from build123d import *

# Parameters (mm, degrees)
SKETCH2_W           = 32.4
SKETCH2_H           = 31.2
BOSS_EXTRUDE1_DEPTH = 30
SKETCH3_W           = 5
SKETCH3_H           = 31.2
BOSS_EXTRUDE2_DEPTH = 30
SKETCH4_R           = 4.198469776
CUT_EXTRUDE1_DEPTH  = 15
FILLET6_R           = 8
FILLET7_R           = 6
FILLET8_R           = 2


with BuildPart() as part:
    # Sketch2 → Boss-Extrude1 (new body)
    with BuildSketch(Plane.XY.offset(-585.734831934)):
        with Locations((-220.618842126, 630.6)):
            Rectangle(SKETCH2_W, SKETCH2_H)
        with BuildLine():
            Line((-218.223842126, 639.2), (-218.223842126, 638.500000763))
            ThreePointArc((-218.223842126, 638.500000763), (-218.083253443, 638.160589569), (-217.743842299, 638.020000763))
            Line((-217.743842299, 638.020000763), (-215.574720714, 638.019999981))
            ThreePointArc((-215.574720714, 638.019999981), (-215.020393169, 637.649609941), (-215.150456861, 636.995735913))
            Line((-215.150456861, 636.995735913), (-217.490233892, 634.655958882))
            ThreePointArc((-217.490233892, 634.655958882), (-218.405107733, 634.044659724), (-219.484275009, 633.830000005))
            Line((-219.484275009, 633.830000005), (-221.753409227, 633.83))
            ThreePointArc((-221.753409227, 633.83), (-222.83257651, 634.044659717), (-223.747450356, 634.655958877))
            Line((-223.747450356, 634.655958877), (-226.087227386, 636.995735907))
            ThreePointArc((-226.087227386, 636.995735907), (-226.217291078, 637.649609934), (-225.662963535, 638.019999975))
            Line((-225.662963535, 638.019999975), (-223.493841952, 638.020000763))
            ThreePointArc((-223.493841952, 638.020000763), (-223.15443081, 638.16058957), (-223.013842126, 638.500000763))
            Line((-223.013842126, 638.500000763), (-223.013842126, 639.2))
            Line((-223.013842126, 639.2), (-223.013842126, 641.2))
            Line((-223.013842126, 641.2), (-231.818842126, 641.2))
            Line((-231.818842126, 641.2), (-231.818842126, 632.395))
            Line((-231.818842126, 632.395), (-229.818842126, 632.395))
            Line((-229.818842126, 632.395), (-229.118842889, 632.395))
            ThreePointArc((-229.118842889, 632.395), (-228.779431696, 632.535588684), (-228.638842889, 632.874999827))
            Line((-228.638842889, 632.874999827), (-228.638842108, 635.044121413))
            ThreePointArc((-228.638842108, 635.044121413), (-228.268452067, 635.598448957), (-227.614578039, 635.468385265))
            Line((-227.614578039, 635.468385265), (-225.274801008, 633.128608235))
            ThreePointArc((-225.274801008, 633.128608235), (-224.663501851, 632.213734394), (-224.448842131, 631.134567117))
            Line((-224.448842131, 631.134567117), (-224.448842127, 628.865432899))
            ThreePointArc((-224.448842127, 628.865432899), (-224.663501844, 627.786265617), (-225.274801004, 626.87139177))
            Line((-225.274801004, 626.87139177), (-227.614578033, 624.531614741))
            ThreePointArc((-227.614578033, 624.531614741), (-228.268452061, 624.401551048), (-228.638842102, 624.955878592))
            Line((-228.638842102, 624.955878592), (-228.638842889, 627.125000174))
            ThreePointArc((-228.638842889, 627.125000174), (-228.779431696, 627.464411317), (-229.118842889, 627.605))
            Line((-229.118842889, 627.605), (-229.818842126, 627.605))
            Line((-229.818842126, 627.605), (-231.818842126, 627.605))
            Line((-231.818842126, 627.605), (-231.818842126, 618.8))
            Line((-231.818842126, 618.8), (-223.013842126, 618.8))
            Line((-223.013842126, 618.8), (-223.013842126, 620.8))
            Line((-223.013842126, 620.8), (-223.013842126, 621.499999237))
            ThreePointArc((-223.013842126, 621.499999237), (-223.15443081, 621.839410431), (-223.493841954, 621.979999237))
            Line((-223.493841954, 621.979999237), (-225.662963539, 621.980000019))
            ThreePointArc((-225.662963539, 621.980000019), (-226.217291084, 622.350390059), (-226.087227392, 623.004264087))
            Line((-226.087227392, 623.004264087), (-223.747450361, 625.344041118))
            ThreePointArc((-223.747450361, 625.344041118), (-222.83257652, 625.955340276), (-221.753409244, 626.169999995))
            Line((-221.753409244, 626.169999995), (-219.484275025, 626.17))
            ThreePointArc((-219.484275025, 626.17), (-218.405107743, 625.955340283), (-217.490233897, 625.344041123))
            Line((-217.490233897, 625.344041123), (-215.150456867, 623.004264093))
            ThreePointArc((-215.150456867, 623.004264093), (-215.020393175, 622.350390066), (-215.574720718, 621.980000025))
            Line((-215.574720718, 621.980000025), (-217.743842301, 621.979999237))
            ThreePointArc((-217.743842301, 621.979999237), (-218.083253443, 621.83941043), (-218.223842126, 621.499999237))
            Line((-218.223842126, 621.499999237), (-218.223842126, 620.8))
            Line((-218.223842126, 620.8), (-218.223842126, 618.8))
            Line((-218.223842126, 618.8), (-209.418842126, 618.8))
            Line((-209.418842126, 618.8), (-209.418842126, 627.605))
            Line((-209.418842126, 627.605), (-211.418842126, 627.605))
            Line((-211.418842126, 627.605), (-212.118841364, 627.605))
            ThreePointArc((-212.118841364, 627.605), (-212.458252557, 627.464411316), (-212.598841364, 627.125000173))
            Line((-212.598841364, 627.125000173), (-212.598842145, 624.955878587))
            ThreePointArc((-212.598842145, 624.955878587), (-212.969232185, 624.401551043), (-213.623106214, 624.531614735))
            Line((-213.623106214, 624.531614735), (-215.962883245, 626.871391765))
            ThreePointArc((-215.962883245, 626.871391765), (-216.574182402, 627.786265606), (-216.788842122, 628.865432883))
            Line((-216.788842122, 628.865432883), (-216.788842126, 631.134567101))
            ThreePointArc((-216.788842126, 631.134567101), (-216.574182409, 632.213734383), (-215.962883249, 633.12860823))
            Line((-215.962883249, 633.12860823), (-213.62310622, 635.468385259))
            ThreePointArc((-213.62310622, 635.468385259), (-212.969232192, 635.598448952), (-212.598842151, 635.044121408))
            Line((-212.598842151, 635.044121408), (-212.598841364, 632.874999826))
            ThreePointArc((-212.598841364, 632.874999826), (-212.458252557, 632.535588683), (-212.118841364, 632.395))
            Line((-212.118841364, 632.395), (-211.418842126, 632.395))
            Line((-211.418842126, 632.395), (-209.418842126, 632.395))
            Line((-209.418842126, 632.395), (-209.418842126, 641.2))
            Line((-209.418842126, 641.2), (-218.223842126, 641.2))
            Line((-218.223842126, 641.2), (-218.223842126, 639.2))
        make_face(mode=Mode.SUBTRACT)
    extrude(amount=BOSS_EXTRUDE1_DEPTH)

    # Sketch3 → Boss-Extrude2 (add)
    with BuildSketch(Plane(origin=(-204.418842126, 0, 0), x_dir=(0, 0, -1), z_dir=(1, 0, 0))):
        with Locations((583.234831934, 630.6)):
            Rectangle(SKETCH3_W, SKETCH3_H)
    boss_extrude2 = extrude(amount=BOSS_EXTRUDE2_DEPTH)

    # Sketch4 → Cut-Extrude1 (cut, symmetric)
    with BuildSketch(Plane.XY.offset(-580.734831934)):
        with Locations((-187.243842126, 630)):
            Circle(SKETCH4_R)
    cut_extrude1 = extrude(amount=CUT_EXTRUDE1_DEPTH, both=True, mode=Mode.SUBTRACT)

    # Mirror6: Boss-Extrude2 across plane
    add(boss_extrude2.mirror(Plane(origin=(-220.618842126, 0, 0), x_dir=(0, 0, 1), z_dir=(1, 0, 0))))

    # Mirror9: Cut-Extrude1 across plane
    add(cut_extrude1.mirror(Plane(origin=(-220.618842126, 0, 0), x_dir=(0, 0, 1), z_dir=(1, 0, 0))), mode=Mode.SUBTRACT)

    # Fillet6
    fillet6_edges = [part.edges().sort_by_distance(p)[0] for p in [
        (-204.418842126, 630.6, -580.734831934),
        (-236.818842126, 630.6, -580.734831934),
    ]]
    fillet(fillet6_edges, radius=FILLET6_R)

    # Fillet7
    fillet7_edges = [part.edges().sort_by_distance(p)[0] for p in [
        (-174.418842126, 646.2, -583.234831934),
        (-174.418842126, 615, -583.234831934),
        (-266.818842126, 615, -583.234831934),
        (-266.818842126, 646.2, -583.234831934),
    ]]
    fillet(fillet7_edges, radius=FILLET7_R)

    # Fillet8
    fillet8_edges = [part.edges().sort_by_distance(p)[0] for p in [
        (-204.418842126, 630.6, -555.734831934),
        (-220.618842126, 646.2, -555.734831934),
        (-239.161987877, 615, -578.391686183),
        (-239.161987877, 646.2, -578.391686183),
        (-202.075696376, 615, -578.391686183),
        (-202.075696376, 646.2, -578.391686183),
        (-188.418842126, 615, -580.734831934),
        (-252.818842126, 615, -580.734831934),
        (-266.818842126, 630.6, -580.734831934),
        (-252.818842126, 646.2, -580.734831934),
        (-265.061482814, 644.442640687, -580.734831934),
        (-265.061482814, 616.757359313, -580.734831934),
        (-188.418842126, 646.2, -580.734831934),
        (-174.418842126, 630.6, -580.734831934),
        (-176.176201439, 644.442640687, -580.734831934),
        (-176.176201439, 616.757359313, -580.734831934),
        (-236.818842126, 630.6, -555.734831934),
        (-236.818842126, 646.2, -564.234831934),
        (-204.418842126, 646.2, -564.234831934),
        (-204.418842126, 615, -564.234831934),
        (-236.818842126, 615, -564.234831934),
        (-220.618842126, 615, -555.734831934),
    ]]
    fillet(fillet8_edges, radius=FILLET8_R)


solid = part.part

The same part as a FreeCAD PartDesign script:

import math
import FreeCAD as App
import Part
import Sketcher
Q = App.Units.Quantity


def edges_at(feature, points):
    """Names of the edges that pass closest to the given points."""
    edges = feature.Shape.Edges
    near = lambda p: min(range(len(edges)), key=lambda i: edges[i].distToShape(Part.Vertex(*p))[0])
    return sorted({f"Edge{near(p) + 1}" for p in points})


def add_polygon(sketch, points):
    """Adds a closed chain of lines whose ends are joined by coincident constraints."""
    first, n = sketch.GeometryCount, len(points)
    for a, b in zip(points, points[1:] + points[:1]):
        sketch.addGeometry(Part.LineSegment(App.Vector(*a, 0), App.Vector(*b, 0)), False)
    for i in range(n):
        sketch.addConstraint(Sketcher.Constraint("Coincident", first + i, 2, first + (i + 1) % n, 1))

doc = App.newDocument("Part")
body = doc.addObject("PartDesign::Body", "Body")

# Sketch on XY plane
sketch1 = body.newObject("Sketcher::SketchObject", "Sketch")
sketch1.AttachmentSupport = (doc.getObject("XY_Plane"), [""])
sketch1.MapMode = "FlatFace"
sketch1.AttachmentOffset = App.Placement(App.Vector(0, 0, -585.734832), App.Rotation())
add_polygon(sketch1, [(-236.82, 646.2), (-236.82, 615), (-204.42, 615), (-204.42, 646.2)])  # lines 0-3
sketch1.addGeometry(Part.ArcOfCircle(Part.Circle(App.Vector(-217.74, 638.5, 0), App.Vector(0, 0, 1), 0.48), math.radians(180), math.radians(270)), False)  # 4
sketch1.addGeometry(Part.LineSegment(App.Vector(-218.22, 638.5, 0), App.Vector(-218.22, 641.2, 0)), False)  # 5
sketch1.addGeometry(Part.LineSegment(App.Vector(-218.22, 641.2, 0), App.Vector(-209.42, 641.2, 0)), False)  # 6
sketch1.addGeometry(Part.LineSegment(App.Vector(-209.42, 641.2, 0), App.Vector(-209.42, 632.39, 0)), False)  # 7
sketch1.addGeometry(Part.LineSegment(App.Vector(-209.42, 632.39, 0), App.Vector(-212.12, 632.39, 0)), False)  # 8
sketch1.addGeometry(Part.ArcOfCircle(Part.Circle(App.Vector(-212.12, 632.88, 0), App.Vector(0, 0, 1), 0.48), math.radians(-180), math.radians(-90)), False)  # 9
sketch1.addGeometry(Part.LineSegment(App.Vector(-212.6, 632.87, 0), App.Vector(-212.6, 635.04, 0)), False)  # 10
sketch1.addGeometry(Part.ArcOfCircle(Part.Circle(App.Vector(-213.2, 635.04, 0), App.Vector(0, 0, 1), 0.6), math.radians(0), math.radians(135)), False)  # 11
sketch1.addGeometry(Part.LineSegment(App.Vector(-213.62, 635.47, 0), App.Vector(-215.96, 633.13, 0)), False)  # 12
sketch1.addGeometry(Part.ArcOfCircle(Part.Circle(App.Vector(-213.97, 631.13, 0), App.Vector(0, 0, 1), 2.82), math.radians(135), math.radians(180)), False)  # 13
sketch1.addGeometry(Part.LineSegment(App.Vector(-216.79, 631.13, 0), App.Vector(-216.79, 628.87, 0)), False)  # 14
sketch1.addGeometry(Part.ArcOfCircle(Part.Circle(App.Vector(-213.97, 628.87, 0), App.Vector(0, 0, 1), 2.82), math.radians(-180), math.radians(-135)), False)  # 15
sketch1.addGeometry(Part.LineSegment(App.Vector(-215.96, 626.87, 0), App.Vector(-213.62, 624.53, 0)), False)  # 16
sketch1.addGeometry(Part.ArcOfCircle(Part.Circle(App.Vector(-213.2, 624.96, 0), App.Vector(0, 0, 1), 0.6), math.radians(-135), math.radians(0)), False)  # 17
sketch1.addGeometry(Part.LineSegment(App.Vector(-212.6, 624.96, 0), App.Vector(-212.6, 627.13, 0)), False)  # 18
sketch1.addGeometry(Part.ArcOfCircle(Part.Circle(App.Vector(-212.12, 627.12, 0), App.Vector(0, 0, 1), 0.48), math.radians(90), math.radians(180)), False)  # 19
sketch1.addGeometry(Part.LineSegment(App.Vector(-212.12, 627.61, 0), App.Vector(-209.42, 627.61, 0)), False)  # 20
sketch1.addGeometry(Part.LineSegment(App.Vector(-209.42, 627.61, 0), App.Vector(-209.42, 618.8, 0)), False)  # 21
sketch1.addGeometry(Part.LineSegment(App.Vector(-209.42, 618.8, 0), App.Vector(-218.22, 618.8, 0)), False)  # 22
sketch1.addGeometry(Part.LineSegment(App.Vector(-218.22, 618.8, 0), App.Vector(-218.22, 621.5, 0)), False)  # 23
sketch1.addGeometry(Part.ArcOfCircle(Part.Circle(App.Vector(-217.74, 621.5, 0), App.Vector(0, 0, 1), 0.48), math.radians(90), math.radians(180)), False)  # 24
sketch1.addGeometry(Part.LineSegment(App.Vector(-217.74, 621.98, 0), App.Vector(-215.57, 621.98, 0)), False)  # 25
sketch1.addGeometry(Part.ArcOfCircle(Part.Circle(App.Vector(-215.57, 622.58, 0), App.Vector(0, 0, 1), 0.6), math.radians(-90), math.radians(45)), False)  # 26
sketch1.addGeometry(Part.LineSegment(App.Vector(-215.15, 623, 0), App.Vector(-217.49, 625.34, 0)), False)  # 27
sketch1.addGeometry(Part.ArcOfCircle(Part.Circle(App.Vector(-219.48, 623.35, 0), App.Vector(0, 0, 1), 2.82), math.radians(45), math.radians(90)), False)  # 28
sketch1.addGeometry(Part.LineSegment(App.Vector(-219.48, 626.17, 0), App.Vector(-221.75, 626.17, 0)), False)  # 29
sketch1.addGeometry(Part.ArcOfCircle(Part.Circle(App.Vector(-221.75, 623.35, 0), App.Vector(0, 0, 1), 2.82), math.radians(90), math.radians(135)), False)  # 30
sketch1.addGeometry(Part.LineSegment(App.Vector(-223.75, 625.34, 0), App.Vector(-226.09, 623, 0)), False)  # 31
sketch1.addGeometry(Part.ArcOfCircle(Part.Circle(App.Vector(-225.66, 622.58, 0), App.Vector(0, 0, 1), 0.6), math.radians(135), math.radians(270)), False)  # 32
sketch1.addGeometry(Part.LineSegment(App.Vector(-225.66, 621.98, 0), App.Vector(-223.49, 621.98, 0)), False)  # 33
sketch1.addGeometry(Part.ArcOfCircle(Part.Circle(App.Vector(-223.49, 621.5, 0), App.Vector(0, 0, 1), 0.48), math.radians(0), math.radians(90)), False)  # 34
sketch1.addGeometry(Part.LineSegment(App.Vector(-223.01, 621.5, 0), App.Vector(-223.01, 618.8, 0)), False)  # 35
sketch1.addGeometry(Part.LineSegment(App.Vector(-223.01, 618.8, 0), App.Vector(-231.82, 618.8, 0)), False)  # 36
sketch1.addGeometry(Part.LineSegment(App.Vector(-231.82, 618.8, 0), App.Vector(-231.82, 627.61, 0)), False)  # 37
sketch1.addGeometry(Part.LineSegment(App.Vector(-231.82, 627.61, 0), App.Vector(-229.12, 627.61, 0)), False)  # 38
sketch1.addGeometry(Part.ArcOfCircle(Part.Circle(App.Vector(-229.12, 627.12, 0), App.Vector(0, 0, 1), 0.48), math.radians(0), math.radians(90)), False)  # 39
sketch1.addGeometry(Part.LineSegment(App.Vector(-228.64, 627.13, 0), App.Vector(-228.64, 624.96, 0)), False)  # 40
sketch1.addGeometry(Part.ArcOfCircle(Part.Circle(App.Vector(-228.04, 624.96, 0), App.Vector(0, 0, 1), 0.6), math.radians(-180), math.radians(-45)), False)  # 41
sketch1.addGeometry(Part.LineSegment(App.Vector(-227.61, 624.53, 0), App.Vector(-225.27, 626.87, 0)), False)  # 42
sketch1.addGeometry(Part.ArcOfCircle(Part.Circle(App.Vector(-227.27, 628.87, 0), App.Vector(0, 0, 1), 2.82), math.radians(-45), math.radians(0)), False)  # 43
sketch1.addGeometry(Part.LineSegment(App.Vector(-224.45, 628.87, 0), App.Vector(-224.45, 631.13, 0)), False)  # 44
sketch1.addGeometry(Part.ArcOfCircle(Part.Circle(App.Vector(-227.27, 631.13, 0), App.Vector(0, 0, 1), 2.82), math.radians(0), math.radians(45)), False)  # 45
sketch1.addGeometry(Part.LineSegment(App.Vector(-225.27, 633.13, 0), App.Vector(-227.61, 635.47, 0)), False)  # 46
sketch1.addGeometry(Part.ArcOfCircle(Part.Circle(App.Vector(-228.04, 635.04, 0), App.Vector(0, 0, 1), 0.6), math.radians(45), math.radians(180)), False)  # 47
sketch1.addGeometry(Part.LineSegment(App.Vector(-228.64, 635.04, 0), App.Vector(-228.64, 632.87, 0)), False)  # 48
sketch1.addGeometry(Part.ArcOfCircle(Part.Circle(App.Vector(-229.12, 632.88, 0), App.Vector(0, 0, 1), 0.48), math.radians(-90), math.radians(0)), False)  # 49
sketch1.addGeometry(Part.LineSegment(App.Vector(-229.12, 632.39, 0), App.Vector(-231.82, 632.39, 0)), False)  # 50
sketch1.addGeometry(Part.LineSegment(App.Vector(-231.82, 632.39, 0), App.Vector(-231.82, 641.2, 0)), False)  # 51
sketch1.addGeometry(Part.LineSegment(App.Vector(-231.82, 641.2, 0), App.Vector(-223.01, 641.2, 0)), False)  # 52
sketch1.addGeometry(Part.LineSegment(App.Vector(-223.01, 641.2, 0), App.Vector(-223.01, 638.5, 0)), False)  # 53
sketch1.addGeometry(Part.ArcOfCircle(Part.Circle(App.Vector(-223.49, 638.5, 0), App.Vector(0, 0, 1), 0.48), math.radians(-90), math.radians(0)), False)  # 54
sketch1.addGeometry(Part.LineSegment(App.Vector(-223.49, 638.02, 0), App.Vector(-225.66, 638.02, 0)), False)  # 55
sketch1.addGeometry(Part.ArcOfCircle(Part.Circle(App.Vector(-225.66, 637.42, 0), App.Vector(0, 0, 1), 0.6), math.radians(90), math.radians(225)), False)  # 56
sketch1.addGeometry(Part.LineSegment(App.Vector(-226.09, 637, 0), App.Vector(-223.75, 634.66, 0)), False)  # 57
sketch1.addGeometry(Part.ArcOfCircle(Part.Circle(App.Vector(-221.75, 636.65, 0), App.Vector(0, 0, 1), 2.82), math.radians(-135), math.radians(-90)), False)  # 58
sketch1.addGeometry(Part.LineSegment(App.Vector(-221.75, 633.83, 0), App.Vector(-219.48, 633.83, 0)), False)  # 59
sketch1.addGeometry(Part.ArcOfCircle(Part.Circle(App.Vector(-219.48, 636.65, 0), App.Vector(0, 0, 1), 2.82), math.radians(-90), math.radians(-45)), False)  # 60
sketch1.addGeometry(Part.LineSegment(App.Vector(-217.49, 634.66, 0), App.Vector(-215.15, 637, 0)), False)  # 61
sketch1.addGeometry(Part.ArcOfCircle(Part.Circle(App.Vector(-215.57, 637.42, 0), App.Vector(0, 0, 1), 0.6), math.radians(-45), math.radians(90)), False)  # 62
sketch1.addGeometry(Part.LineSegment(App.Vector(-215.57, 638.02, 0), App.Vector(-217.74, 638.02, 0)), False)  # 63
sketch1.addConstraint([
    Sketcher.Constraint("Tangent", 4, 1, 5, 1),
    Sketcher.Constraint("Coincident", 5, 2, 6, 1),
    Sketcher.Constraint("Coincident", 6, 2, 7, 1),
    Sketcher.Constraint("Coincident", 7, 2, 8, 1),
    Sketcher.Constraint("Tangent", 8, 2, 9, 2),
    Sketcher.Constraint("Tangent", 9, 1, 10, 1),
    Sketcher.Constraint("Tangent", 10, 2, 11, 1),
    Sketcher.Constraint("Tangent", 11, 2, 12, 1),
    Sketcher.Constraint("Tangent", 12, 2, 13, 1),
    Sketcher.Constraint("Tangent", 13, 2, 14, 1),
    Sketcher.Constraint("Tangent", 14, 2, 15, 1),
    Sketcher.Constraint("Tangent", 15, 2, 16, 1),
    Sketcher.Constraint("Tangent", 16, 2, 17, 1),
    Sketcher.Constraint("Tangent", 17, 2, 18, 1),
    Sketcher.Constraint("Tangent", 18, 2, 19, 2),
    Sketcher.Constraint("Tangent", 19, 1, 20, 1),
    Sketcher.Constraint("Coincident", 20, 2, 21, 1),
    Sketcher.Constraint("Coincident", 21, 2, 22, 1),
    Sketcher.Constraint("Coincident", 22, 2, 23, 1),
    Sketcher.Constraint("Tangent", 23, 2, 24, 2),
    Sketcher.Constraint("Tangent", 24, 1, 25, 1),
    Sketcher.Constraint("Tangent", 25, 2, 26, 1),
    Sketcher.Constraint("Tangent", 26, 2, 27, 1),
    Sketcher.Constraint("Tangent", 27, 2, 28, 1),
    Sketcher.Constraint("Tangent", 28, 2, 29, 1),
    Sketcher.Constraint("Tangent", 29, 2, 30, 1),
    Sketcher.Constraint("Tangent", 30, 2, 31, 1),
    Sketcher.Constraint("Tangent", 31, 2, 32, 1),
    Sketcher.Constraint("Tangent", 32, 2, 33, 1),
    Sketcher.Constraint("Tangent", 33, 2, 34, 2),
    Sketcher.Constraint("Tangent", 34, 1, 35, 1),
    Sketcher.Constraint("Coincident", 35, 2, 36, 1),
    Sketcher.Constraint("Coincident", 36, 2, 37, 1),
    Sketcher.Constraint("Coincident", 37, 2, 38, 1),
    Sketcher.Constraint("Tangent", 38, 2, 39, 2),
    Sketcher.Constraint("Tangent", 39, 1, 40, 1),
    Sketcher.Constraint("Tangent", 40, 2, 41, 1),
    Sketcher.Constraint("Tangent", 41, 2, 42, 1),
    Sketcher.Constraint("Tangent", 42, 2, 43, 1),
    Sketcher.Constraint("Tangent", 43, 2, 44, 1),
    Sketcher.Constraint("Tangent", 44, 2, 45, 1),
    Sketcher.Constraint("Tangent", 45, 2, 46, 1),
    Sketcher.Constraint("Tangent", 46, 2, 47, 1),
    Sketcher.Constraint("Tangent", 47, 2, 48, 1),
    Sketcher.Constraint("Tangent", 48, 2, 49, 2),
    Sketcher.Constraint("Tangent", 49, 1, 50, 1),
    Sketcher.Constraint("Coincident", 50, 2, 51, 1),
    Sketcher.Constraint("Coincident", 51, 2, 52, 1),
    Sketcher.Constraint("Coincident", 52, 2, 53, 1),
    Sketcher.Constraint("Tangent", 53, 2, 54, 2),
    Sketcher.Constraint("Tangent", 54, 1, 55, 1),
    Sketcher.Constraint("Tangent", 55, 2, 56, 1),
    Sketcher.Constraint("Tangent", 56, 2, 57, 1),
    Sketcher.Constraint("Tangent", 57, 2, 58, 1),
    Sketcher.Constraint("Tangent", 58, 2, 59, 1),
    Sketcher.Constraint("Tangent", 59, 2, 60, 1),
    Sketcher.Constraint("Tangent", 60, 2, 61, 1),
    Sketcher.Constraint("Tangent", 61, 2, 62, 1),
    Sketcher.Constraint("Tangent", 62, 2, 63, 1),
    Sketcher.Constraint("Tangent", 63, 2, 4, 2),
    Sketcher.Constraint("Vertical", 0),
    Sketcher.Constraint("Horizontal", 1),
    Sketcher.Constraint("Vertical", 2),
    Sketcher.Constraint("Horizontal", 3),
    Sketcher.Constraint("Vertical", 5),
    Sketcher.Constraint("Horizontal", 6),
    Sketcher.Constraint("Vertical", 7),
    Sketcher.Constraint("Horizontal", 8),
    Sketcher.Constraint("Vertical", 10),
    Sketcher.Constraint("Vertical", 14),
    Sketcher.Constraint("Vertical", 18),
    Sketcher.Constraint("Horizontal", 20),
    Sketcher.Constraint("Vertical", 21),
    Sketcher.Constraint("Horizontal", 22),
    Sketcher.Constraint("Vertical", 23),
    Sketcher.Constraint("Horizontal", 25),
    Sketcher.Constraint("Horizontal", 29),
    Sketcher.Constraint("Horizontal", 33),
    Sketcher.Constraint("Vertical", 35),
    Sketcher.Constraint("Horizontal", 36),
    Sketcher.Constraint("Vertical", 37),
    Sketcher.Constraint("Horizontal", 38),
    Sketcher.Constraint("Vertical", 40),
    Sketcher.Constraint("Vertical", 44),
    Sketcher.Constraint("Vertical", 48),
    Sketcher.Constraint("Horizontal", 50),
    Sketcher.Constraint("Vertical", 51),
    Sketcher.Constraint("Horizontal", 52),
    Sketcher.Constraint("Vertical", 53),
    Sketcher.Constraint("Horizontal", 55),
    Sketcher.Constraint("Horizontal", 59),
    Sketcher.Constraint("Horizontal", 63),
    Sketcher.Constraint("Equal", 4, 9),
    Sketcher.Constraint("Equal", 13, 15),
    Sketcher.Constraint("Equal", 11, 17),
    Sketcher.Constraint("Equal", 9, 19),
    Sketcher.Constraint("Equal", 19, 24),
    Sketcher.Constraint("Equal", 17, 26),
    Sketcher.Constraint("Equal", 15, 28),
    Sketcher.Constraint("Equal", 28, 30),
    Sketcher.Constraint("Equal", 26, 32),
    Sketcher.Constraint("Equal", 24, 34),
    Sketcher.Constraint("Equal", 34, 39),
    Sketcher.Constraint("Equal", 32, 41),
    Sketcher.Constraint("Equal", 30, 43),
    Sketcher.Constraint("Equal", 43, 45),
    Sketcher.Constraint("Equal", 41, 47),
    Sketcher.Constraint("Equal", 39, 49),
    Sketcher.Constraint("Equal", 49, 54),
    Sketcher.Constraint("Equal", 47, 56),
    Sketcher.Constraint("Equal", 45, 58),
    Sketcher.Constraint("Equal", 58, 60),
    Sketcher.Constraint("Equal", 56, 62),
    Sketcher.Constraint("Perpendicular", 12, 16),
    Sketcher.Constraint("Parallel", 16, 27),
    Sketcher.Constraint("Perpendicular", 27, 31),
    Sketcher.Constraint("Parallel", 31, 42),
    Sketcher.Constraint("Perpendicular", 42, 46),
    Sketcher.Constraint("Parallel", 46, 57),
    Sketcher.Constraint("Perpendicular", 57, 61),
    Sketcher.Constraint("Horizontal", 26, 3, 32, 3),
    Sketcher.Constraint("Horizontal", 19, 3, 39, 3),
    Sketcher.Constraint("Horizontal", 17, 3, 41, 3),
    Sketcher.Constraint("Horizontal", 15, 3, 43, 3),
    Sketcher.Constraint("Horizontal", 13, 3, 45, 3),
    Sketcher.Constraint("Horizontal", 11, 3, 47, 3),
    Sketcher.Constraint("Horizontal", 9, 3, 49, 3),
    Sketcher.Constraint("Horizontal", 4, 3, 54, 3),
    Sketcher.Constraint("Horizontal", 27, 2, 30, 2),
    Sketcher.Constraint("Horizontal", 22, 2, 35, 2),
    Sketcher.Constraint("Horizontal", 6, 2, 51, 2),
    Sketcher.Constraint("Vertical", 11, 3, 17, 3),
    Sketcher.Constraint("Vertical", 4, 3, 24, 3),
    Sketcher.Constraint("Vertical", 34, 3, 54, 3),
    Sketcher.Constraint("Vertical", 32, 3, 56, 3),
    Sketcher.Constraint("Vertical", 30, 3, 58, 3),
    Sketcher.Constraint("Vertical", 28, 3, 60, 3),
    Sketcher.Constraint("Vertical", 7, 2, 20, 2),
    Sketcher.Constraint("Vertical", 37, 2, 50, 2),
    Sketcher.Constraint("Equal", 25, 33),
    Sketcher.Constraint("Equal", 22, 36),
    Sketcher.Constraint("Equal", 20, 38),
    Sketcher.Constraint("Equal", 50, 5),
    Sketcher.Constraint("Equal", 52, 7),
    Sketcher.Constraint("Equal", 63, 10),
    Sketcher.Constraint("Equal", 59, 14),
    Sketcher.Constraint("Equal", 10, 18),
    Sketcher.Constraint("Equal", 7, 21),
    Sketcher.Constraint("Equal", 5, 23),
    Sketcher.Constraint("Equal", 16, 27),
    Sketcher.Constraint("Radius", 11, Q("0.6 mm")),
    Sketcher.Constraint("Radius", 4, Q("0.48 mm")),
    Sketcher.Constraint("Radius", 13, Q("2.82 mm")),
    Sketcher.Constraint("DistanceX", 1, 1, 1, 2, Q("32.4 mm")),
    Sketcher.Constraint("DistanceX", 8, 2, 8, 1, Q("2.699999 mm")),
    Sketcher.Constraint("DistanceY", 0, 2, 0, 1, Q("31.2 mm")),
    Sketcher.Constraint("DistanceY", -1, 1, 0, 2, Q("615 mm")),
    Sketcher.Constraint("DistanceY", -1, 1, 4, 3, Q("638.500001 mm")),
    Sketcher.Constraint("DistanceY", -1, 1, 24, 3, Q("621.499999 mm")),
    Sketcher.Constraint("DistanceX", 6, 1, 6, 2, Q("8.805 mm")),
    Sketcher.Constraint("DistanceY", -1, 1, 28, 3, Q("623.35 mm")),
    Sketcher.Constraint("DistanceX", 25, 1, 25, 2, Q("2.169122 mm")),
    Sketcher.Constraint("DistanceX", 42, 2, -1, 1, Q("225.274801 mm")),
    Sketcher.Constraint("DistanceX", 0, 2, -1, 1, Q("236.818842 mm")),
])
pad1 = body.newObject("PartDesign::Pad", "Pad")
pad1.Profile = sketch1
pad1.Length = 30

# Sketch on YZ plane
sketch2 = body.newObject("Sketcher::SketchObject", "Sketch001")
sketch2.AttachmentSupport = (doc.getObject("YZ_Plane"), [""])
sketch2.MapMode = "FlatFace"
sketch2.AttachmentOffset = App.Placement(App.Vector(0, 0, -204.418842), App.Rotation())
add_polygon(sketch2, [(646, -581), (615, -581), (615, -586), (646, -586)])  # lines 0-3
sketch2.addConstraint([
    Sketcher.Constraint("Horizontal", 0),
    Sketcher.Constraint("Vertical", 1),
    Sketcher.Constraint("Horizontal", 2),
    Sketcher.Constraint("Vertical", 3),
    Sketcher.Constraint("DistanceY", 1, 2, 1, 1, Q("5 mm")),
    Sketcher.Constraint("DistanceX", 0, 2, 0, 1, Q("31.2 mm")),
    Sketcher.Constraint("DistanceX", -1, 1, 0, 2, Q("615 mm")),
    Sketcher.Constraint("DistanceY", 0, 2, -1, 1, Q("580.734832 mm")),
])
pad2 = body.newObject("PartDesign::Pad", "Pad001")
pad2.Profile = sketch2
pad2.Length = 30

# Sketch on XY plane
sketch3 = body.newObject("Sketcher::SketchObject", "Sketch002")
sketch3.AttachmentSupport = (doc.getObject("XY_Plane"), [""])
sketch3.MapMode = "FlatFace"
sketch3.AttachmentOffset = App.Placement(App.Vector(0, 0, -580.734832), App.Rotation())
sketch3.addGeometry(Part.Circle(App.Vector(-187.2, 630, 0), App.Vector(0, 0, 1), 4.2), False)
sketch3.addConstraint([
    Sketcher.Constraint("DistanceY", -1, 1, 0, 3, Q("630 mm")),
    Sketcher.Constraint("Diameter", 0, Q("8.39694 mm")),
    Sketcher.Constraint("DistanceX", 0, 3, -1, 1, Q("187.243842 mm")),
])
pocket1 = body.newObject("PartDesign::Pocket", "Pocket")
pocket1.Profile = sketch3
pocket1.Length = 30
pocket1.Midplane = True
doc.recompute()

datumplane = body.newObject("PartDesign::Plane", "DatumPlane")
datumplane.AttachmentSupport = (doc.getObject("YZ_Plane"), [""])
datumplane.MapMode = "FlatFace"
datumplane.AttachmentOffset = App.Placement(App.Vector(0, 0, -220.618842), App.Rotation())
mirrored = body.newObject("PartDesign::Mirrored", "Mirrored")
mirrored.Originals = [pad2]
mirrored.MirrorPlane = (datumplane, [""])
body.Tip = mirrored
doc.recompute()

datumplane2 = body.newObject("PartDesign::Plane", "DatumPlane001")
datumplane2.AttachmentSupport = (doc.getObject("YZ_Plane"), [""])
datumplane2.MapMode = "FlatFace"
datumplane2.AttachmentOffset = App.Placement(App.Vector(0, 0, -220.618842), App.Rotation())
mirrored2 = body.newObject("PartDesign::Mirrored", "Mirrored001")
mirrored2.Originals = [pocket1]
mirrored2.MirrorPlane = (datumplane2, [""])
body.Tip = mirrored2
doc.recompute()

fillet = body.newObject("PartDesign::Fillet", "Fillet")
fillet.Base = (mirrored2, edges_at(mirrored2, [(-204.419, 630.6, -580.735), (-236.819, 630.6, -580.735)]))
fillet.Radius = 8
doc.recompute()

fillet2 = body.newObject("PartDesign::Fillet", "Fillet001")
fillet2.Base = (fillet, edges_at(fillet, [
    (-174.419, 646.2, -583.235),
    (-174.419, 615, -583.235),
    (-266.819, 615, -583.235),
    (-266.819, 646.2, -583.235),
]))
fillet2.Radius = 6
doc.recompute()

fillet3 = body.newObject("PartDesign::Fillet", "Fillet002")
fillet3.Base = (fillet2, edges_at(fillet2, [
    (-204.419, 630.6, -555.735),
    (-220.619, 646.2, -555.735),
    (-239.162, 615, -578.392),
    (-239.162, 646.2, -578.392),
    (-202.076, 615, -578.392),
    (-202.076, 646.2, -578.392),
    (-188.419, 615, -580.735),
    (-252.819, 615, -580.735),
    (-266.819, 630.6, -580.735),
    (-252.819, 646.2, -580.735),
    (-265.061, 644.443, -580.735),
    (-265.061, 616.757, -580.735),
    (-188.419, 646.2, -580.735),
    (-174.419, 630.6, -580.735),
    (-176.176, 644.443, -580.735),
    (-176.176, 616.757, -580.735),
    (-236.819, 630.6, -555.735),
    (-236.819, 646.2, -564.235),
    (-204.419, 646.2, -564.235),
    (-204.419, 615, -564.235),
    (-236.819, 615, -564.235),
    (-220.619, 615, -555.735),
]))
fillet3.Radius = 2

doc.recompute()
